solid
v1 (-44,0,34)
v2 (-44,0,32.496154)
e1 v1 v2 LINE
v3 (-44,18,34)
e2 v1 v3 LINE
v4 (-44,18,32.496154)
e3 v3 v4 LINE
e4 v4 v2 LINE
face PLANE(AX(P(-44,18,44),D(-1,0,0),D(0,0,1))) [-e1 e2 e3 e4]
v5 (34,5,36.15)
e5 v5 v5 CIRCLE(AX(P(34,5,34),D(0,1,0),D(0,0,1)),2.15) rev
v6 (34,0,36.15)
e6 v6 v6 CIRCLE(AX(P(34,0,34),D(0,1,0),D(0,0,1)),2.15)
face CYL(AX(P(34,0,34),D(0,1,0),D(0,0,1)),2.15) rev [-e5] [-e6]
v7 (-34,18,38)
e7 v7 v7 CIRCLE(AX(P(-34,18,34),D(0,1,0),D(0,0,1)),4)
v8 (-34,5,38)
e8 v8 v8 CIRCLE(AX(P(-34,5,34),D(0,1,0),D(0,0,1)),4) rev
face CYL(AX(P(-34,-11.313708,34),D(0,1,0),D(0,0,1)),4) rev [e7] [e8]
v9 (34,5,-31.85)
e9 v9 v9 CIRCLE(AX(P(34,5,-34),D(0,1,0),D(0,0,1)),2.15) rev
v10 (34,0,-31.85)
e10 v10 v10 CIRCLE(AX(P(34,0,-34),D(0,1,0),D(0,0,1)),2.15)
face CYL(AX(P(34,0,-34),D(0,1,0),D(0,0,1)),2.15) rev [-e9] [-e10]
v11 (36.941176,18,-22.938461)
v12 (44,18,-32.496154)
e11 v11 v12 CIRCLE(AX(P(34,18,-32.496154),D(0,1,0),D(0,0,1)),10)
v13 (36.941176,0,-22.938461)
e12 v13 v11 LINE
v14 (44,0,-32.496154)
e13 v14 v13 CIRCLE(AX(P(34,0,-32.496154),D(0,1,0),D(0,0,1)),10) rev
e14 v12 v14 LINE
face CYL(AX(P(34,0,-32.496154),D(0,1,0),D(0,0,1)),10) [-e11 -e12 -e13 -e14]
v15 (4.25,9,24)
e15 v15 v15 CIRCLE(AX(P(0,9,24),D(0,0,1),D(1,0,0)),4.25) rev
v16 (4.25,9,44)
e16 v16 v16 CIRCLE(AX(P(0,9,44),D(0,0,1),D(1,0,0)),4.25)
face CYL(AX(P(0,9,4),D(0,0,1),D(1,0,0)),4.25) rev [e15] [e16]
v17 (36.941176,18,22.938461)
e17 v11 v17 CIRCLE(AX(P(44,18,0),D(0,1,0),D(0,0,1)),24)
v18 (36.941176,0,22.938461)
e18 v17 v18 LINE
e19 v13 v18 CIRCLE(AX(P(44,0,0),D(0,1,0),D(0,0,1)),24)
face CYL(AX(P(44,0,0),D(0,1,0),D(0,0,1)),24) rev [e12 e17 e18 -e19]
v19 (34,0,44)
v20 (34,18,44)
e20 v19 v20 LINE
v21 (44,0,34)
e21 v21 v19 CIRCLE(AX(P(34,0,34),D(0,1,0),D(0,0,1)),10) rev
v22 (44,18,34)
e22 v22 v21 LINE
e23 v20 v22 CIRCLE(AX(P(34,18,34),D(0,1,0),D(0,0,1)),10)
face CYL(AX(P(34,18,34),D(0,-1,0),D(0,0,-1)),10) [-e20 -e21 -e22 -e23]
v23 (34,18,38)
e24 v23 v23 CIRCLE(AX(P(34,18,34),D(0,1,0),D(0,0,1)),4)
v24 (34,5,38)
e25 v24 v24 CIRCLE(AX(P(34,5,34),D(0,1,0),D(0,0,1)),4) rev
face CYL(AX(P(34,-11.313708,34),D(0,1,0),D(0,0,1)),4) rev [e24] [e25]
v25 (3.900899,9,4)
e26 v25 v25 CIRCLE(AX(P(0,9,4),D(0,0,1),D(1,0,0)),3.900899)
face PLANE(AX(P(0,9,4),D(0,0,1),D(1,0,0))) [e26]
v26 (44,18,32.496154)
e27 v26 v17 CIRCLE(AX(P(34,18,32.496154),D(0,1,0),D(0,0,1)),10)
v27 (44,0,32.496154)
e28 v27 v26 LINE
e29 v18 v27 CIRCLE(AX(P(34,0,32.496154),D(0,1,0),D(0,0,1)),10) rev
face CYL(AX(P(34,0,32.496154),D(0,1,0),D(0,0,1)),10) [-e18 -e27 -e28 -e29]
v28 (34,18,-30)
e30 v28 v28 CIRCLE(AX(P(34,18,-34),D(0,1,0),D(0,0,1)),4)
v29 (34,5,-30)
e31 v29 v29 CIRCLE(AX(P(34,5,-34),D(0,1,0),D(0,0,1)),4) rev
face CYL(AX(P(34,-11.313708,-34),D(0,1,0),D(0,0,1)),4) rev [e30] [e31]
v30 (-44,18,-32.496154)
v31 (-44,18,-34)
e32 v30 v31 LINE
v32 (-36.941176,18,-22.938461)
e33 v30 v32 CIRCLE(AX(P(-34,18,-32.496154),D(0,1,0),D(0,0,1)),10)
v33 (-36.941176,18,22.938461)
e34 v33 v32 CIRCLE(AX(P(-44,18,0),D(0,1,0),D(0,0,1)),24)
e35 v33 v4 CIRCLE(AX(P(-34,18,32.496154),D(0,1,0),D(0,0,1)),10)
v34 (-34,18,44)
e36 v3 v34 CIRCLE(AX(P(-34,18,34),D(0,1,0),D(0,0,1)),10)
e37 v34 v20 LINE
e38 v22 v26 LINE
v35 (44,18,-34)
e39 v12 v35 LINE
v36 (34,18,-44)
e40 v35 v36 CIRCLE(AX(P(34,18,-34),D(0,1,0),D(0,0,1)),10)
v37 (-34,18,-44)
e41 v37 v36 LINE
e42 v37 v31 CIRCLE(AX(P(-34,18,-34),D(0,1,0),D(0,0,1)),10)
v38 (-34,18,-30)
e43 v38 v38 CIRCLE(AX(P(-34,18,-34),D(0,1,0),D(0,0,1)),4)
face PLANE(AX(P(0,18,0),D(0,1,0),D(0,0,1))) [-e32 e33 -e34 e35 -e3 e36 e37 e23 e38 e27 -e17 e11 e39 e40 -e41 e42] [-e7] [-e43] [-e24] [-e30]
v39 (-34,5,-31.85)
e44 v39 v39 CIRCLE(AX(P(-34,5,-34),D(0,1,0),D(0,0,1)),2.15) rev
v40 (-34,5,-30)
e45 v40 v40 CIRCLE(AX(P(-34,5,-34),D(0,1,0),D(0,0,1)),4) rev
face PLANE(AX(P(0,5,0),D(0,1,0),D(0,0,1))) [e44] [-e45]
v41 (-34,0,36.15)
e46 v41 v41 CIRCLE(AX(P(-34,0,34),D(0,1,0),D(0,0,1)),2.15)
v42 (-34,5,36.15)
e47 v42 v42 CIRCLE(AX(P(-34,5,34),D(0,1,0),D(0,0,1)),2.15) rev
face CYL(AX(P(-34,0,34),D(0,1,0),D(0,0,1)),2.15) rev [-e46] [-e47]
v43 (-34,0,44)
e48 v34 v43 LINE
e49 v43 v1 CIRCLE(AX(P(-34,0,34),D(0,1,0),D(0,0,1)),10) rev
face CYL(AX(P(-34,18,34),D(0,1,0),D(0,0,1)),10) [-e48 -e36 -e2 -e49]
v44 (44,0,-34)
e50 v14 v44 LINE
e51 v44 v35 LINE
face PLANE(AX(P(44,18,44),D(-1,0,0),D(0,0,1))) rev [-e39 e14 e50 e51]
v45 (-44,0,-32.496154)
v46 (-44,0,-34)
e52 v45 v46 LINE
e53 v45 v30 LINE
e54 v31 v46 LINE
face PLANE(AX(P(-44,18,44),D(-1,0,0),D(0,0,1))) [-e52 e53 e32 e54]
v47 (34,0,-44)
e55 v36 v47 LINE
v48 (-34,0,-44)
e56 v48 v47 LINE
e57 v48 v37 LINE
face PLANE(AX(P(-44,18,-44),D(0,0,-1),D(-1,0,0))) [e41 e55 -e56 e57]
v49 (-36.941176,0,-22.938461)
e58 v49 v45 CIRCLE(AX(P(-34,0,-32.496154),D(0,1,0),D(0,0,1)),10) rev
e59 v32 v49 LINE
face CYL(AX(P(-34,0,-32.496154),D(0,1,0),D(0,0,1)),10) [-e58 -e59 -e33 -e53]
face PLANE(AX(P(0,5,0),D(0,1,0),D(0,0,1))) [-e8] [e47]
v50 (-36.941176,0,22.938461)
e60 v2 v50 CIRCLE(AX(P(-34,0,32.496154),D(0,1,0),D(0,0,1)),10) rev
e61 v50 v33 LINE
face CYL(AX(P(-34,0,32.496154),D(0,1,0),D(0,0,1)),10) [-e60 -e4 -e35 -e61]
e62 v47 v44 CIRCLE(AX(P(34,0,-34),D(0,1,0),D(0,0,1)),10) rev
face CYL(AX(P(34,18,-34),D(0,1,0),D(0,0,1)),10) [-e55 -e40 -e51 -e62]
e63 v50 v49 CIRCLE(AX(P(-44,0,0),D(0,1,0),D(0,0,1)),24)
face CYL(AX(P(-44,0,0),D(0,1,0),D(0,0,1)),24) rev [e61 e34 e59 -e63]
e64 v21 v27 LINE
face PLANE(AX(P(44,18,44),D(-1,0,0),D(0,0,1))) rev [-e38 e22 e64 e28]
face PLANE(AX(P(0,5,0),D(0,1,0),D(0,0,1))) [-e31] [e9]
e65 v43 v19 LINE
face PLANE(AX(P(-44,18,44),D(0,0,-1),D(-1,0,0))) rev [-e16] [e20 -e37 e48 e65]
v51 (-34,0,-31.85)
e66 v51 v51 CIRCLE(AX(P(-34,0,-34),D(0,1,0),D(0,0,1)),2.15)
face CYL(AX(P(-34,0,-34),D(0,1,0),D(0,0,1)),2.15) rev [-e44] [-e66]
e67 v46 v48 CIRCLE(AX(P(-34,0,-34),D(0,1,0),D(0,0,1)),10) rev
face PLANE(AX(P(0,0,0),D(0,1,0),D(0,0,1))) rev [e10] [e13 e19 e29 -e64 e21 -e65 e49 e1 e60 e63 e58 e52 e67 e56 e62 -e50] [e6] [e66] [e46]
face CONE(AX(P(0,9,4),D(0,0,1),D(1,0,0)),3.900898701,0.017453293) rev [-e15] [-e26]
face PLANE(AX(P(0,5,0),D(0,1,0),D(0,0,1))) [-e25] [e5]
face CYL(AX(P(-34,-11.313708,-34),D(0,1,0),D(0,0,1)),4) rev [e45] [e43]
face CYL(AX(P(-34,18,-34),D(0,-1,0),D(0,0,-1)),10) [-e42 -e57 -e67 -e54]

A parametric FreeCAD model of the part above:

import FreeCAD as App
import Part
import Sketcher


def edges_at(feature, points):
    """Names of the edges that pass closest to the given points."""
    edges = feature.Shape.Edges
    near = lambda p: min(range(len(edges)), key=lambda i: edges[i].distToShape(Part.Vertex(*p))[0])
    return sorted({f"Edge{near(p) + 1}" for p in points})

doc = App.newDocument("Part")
body = doc.addObject("PartDesign::Body", "Body")

# Sketch on XZ plane
sketch1 = body.newObject("Sketcher::SketchObject", "Sketch")
sketch1.AttachmentSupport = (doc.getObject("XZ_Plane"), [""])
sketch1.MapMode = "FlatFace"
sketch1.addGeometry(Part.LineSegment(App.Vector(-44, -44, 0), App.Vector(-44, 44, 0)), False)
sketch1.addGeometry(Part.LineSegment(App.Vector(-44, 44, 0), App.Vector(44, 44, 0)), False)
sketch1.addGeometry(Part.LineSegment(App.Vector(44, 44, 0), App.Vector(44, -44, 0)), False)
sketch1.addGeometry(Part.LineSegment(App.Vector(44, -44, 0), App.Vector(-44, -44, 0)), False)
sketch1.addConstraint(Sketcher.Constraint("Coincident", 0, 2, 1, 1))
sketch1.addConstraint(Sketcher.Constraint("Coincident", 1, 2, 2, 1))
sketch1.addConstraint(Sketcher.Constraint("Coincident", 2, 2, 3, 1))
sketch1.addConstraint(Sketcher.Constraint("Coincident", 3, 2, 0, 1))
sketch1.addConstraint(Sketcher.Constraint("Vertical", 0))
sketch1.addConstraint(Sketcher.Constraint("Horizontal", 1))
sketch1.addConstraint(Sketcher.Constraint("Vertical", 2))
sketch1.addConstraint(Sketcher.Constraint("Horizontal", 3))
sketch1.addConstraint(Sketcher.Constraint("Symmetric", 0, 2, 2, 2, -1, 1))
sketch1.addConstraint(Sketcher.Constraint("Equal", 3, 0))
sketch1.addConstraint(Sketcher.Constraint("DistanceX", 1, 1, 1, 2, 88.0))
pad1 = body.newObject("PartDesign::Pad", "Pad")
pad1.Profile = sketch1
pad1.Length = 18
pad1.Reversed = True
doc.recompute()

fillet = body.newObject("PartDesign::Fillet", "Fillet")
fillet.Base = (pad1, edges_at(pad1, [
    (-44, 9, -44),
    (-44, 9, 44),
    (44, 9, 44),
    (44, 9, -44),
]))
fillet.Radius = 10

# Sketch on XZ plane
sketch2 = body.newObject("Sketcher::SketchObject", "Sketch001")
sketch2.AttachmentSupport = (doc.getObject("XZ_Plane"), [""])
sketch2.MapMode = "FlatFace"
sketch2.AttachmentOffset = App.Placement(App.Vector(0, 0, -18), App.Rotation())
sketch2.addGeometry(Part.Circle(App.Vector(-34, -34, 0), App.Vector(0, 0, 1), 2.1), False)
sketch2.addGeometry(Part.Circle(App.Vector(34, -34, 0), App.Vector(0, 0, 1), 2.1), False)
sketch2.addGeometry(Part.Circle(App.Vector(34, 34, 0), App.Vector(0, 0, 1), 2.1), False)
sketch2.addGeometry(Part.Circle(App.Vector(-34, 34, 0), App.Vector(0, 0, 1), 2.1), False)
sketch2.addConstraint(Sketcher.Constraint("Equal", 0, 1))
sketch2.addConstraint(Sketcher.Constraint("Equal", 1, 2))
sketch2.addConstraint(Sketcher.Constraint("Equal", 2, 3))
sketch2.addConstraint(Sketcher.Constraint("Symmetric", 0, 3, 2, 3, -1, 1))
sketch2.addConstraint(Sketcher.Constraint("Symmetric", 1, 3, 3, 3, -1, 1))
sketch2.addConstraint(Sketcher.Constraint("Symmetric", 0, 3, 1, 3, -2))
sketch2.addConstraint(Sketcher.Constraint("Diameter", 0, 4.3))
sketch2.addConstraint(Sketcher.Constraint("DistanceX", 0, 3, -1, 1, 34.0))
sketch2.addConstraint(Sketcher.Constraint("DistanceY", 0, 3, -1, 1, 34.0))
pocket1 = body.newObject("PartDesign::Pocket", "Pocket")
pocket1.Profile = sketch2
pocket1.Type = "ThroughAll"
pocket1.Reversed = True

# Sketch on XZ plane
sketch3 = body.newObject("Sketcher::SketchObject", "Sketch002")
sketch3.AttachmentSupport = (doc.getObject("XZ_Plane"), [""])
sketch3.MapMode = "FlatFace"
sketch3.AttachmentOffset = App.Placement(App.Vector(0, 0, -18), App.Rotation())
sketch3.addGeometry(Part.Circle(App.Vector(-34, -34, 0), App.Vector(0, 0, 1), 4), False)
sketch3.addGeometry(Part.Circle(App.Vector(34, -34, 0), App.Vector(0, 0, 1), 4), False)
sketch3.addGeometry(Part.Circle(App.Vector(34, 34, 0), App.Vector(0, 0, 1), 4), False)
sketch3.addGeometry(Part.Circle(App.Vector(-34, 34, 0), App.Vector(0, 0, 1), 4), False)
sketch3.addConstraint(Sketcher.Constraint("Equal", 0, 1))
sketch3.addConstraint(Sketcher.Constraint("Equal", 1, 2))
sketch3.addConstraint(Sketcher.Constraint("Equal", 2, 3))
sketch3.addConstraint(Sketcher.Constraint("Symmetric", 0, 3, 2, 3, -1, 1))
sketch3.addConstraint(Sketcher.Constraint("Symmetric", 1, 3, 3, 3, -1, 1))
sketch3.addConstraint(Sketcher.Constraint("Symmetric", 0, 3, 1, 3, -2))
sketch3.addConstraint(Sketcher.Constraint("Diameter", 0, 8.0))
sketch3.addConstraint(Sketcher.Constraint("DistanceX", 0, 3, -1, 1, 34.0))
sketch3.addConstraint(Sketcher.Constraint("DistanceY", 0, 3, -1, 1, 34.0))
pocket2 = body.newObject("PartDesign::Pocket", "Pocket001")
pocket2.Profile = sketch3
pocket2.Length = 13
pocket2.Reversed = True

# Sketch on XY plane
sketch4 = body.newObject("Sketcher::SketchObject", "Sketch003")
sketch4.AttachmentSupport = (doc.getObject("XY_Plane"), [""])
sketch4.MapMode = "FlatFace"
sketch4.AttachmentOffset = App.Placement(App.Vector(0, 0, 44), App.Rotation())
sketch4.addGeometry(Part.Circle(App.Vector(0, 9, 0), App.Vector(0, 0, 1), 4.2), False)
sketch4.addConstraint(Sketcher.Constraint("PointOnObject", 0, 3, -2))
sketch4.addConstraint(Sketcher.Constraint("Diameter", 0, 8.5))
sketch4.addConstraint(Sketcher.Constraint("DistanceY", -1, 1, 0, 3, 9.0))
pocket3 = body.newObject("PartDesign::Pocket", "Pocket002")
pocket3.Profile = sketch4
pocket3.Length = 40
doc.recompute()

chamfer = body.newObject("PartDesign::Chamfer", "Chamfer")
chamfer.Base = (pocket3, edges_at(pocket3, [(-4.25, 9, 4)]))
chamfer.ChamferType = "Two distances"
chamfer.Size = 20
chamfer.Size2 = 0.349101

# Sketch on XZ plane
sketch5 = body.newObject("Sketcher::SketchObject", "Sketch004")
sketch5.AttachmentSupport = (doc.getObject("XZ_Plane"), [""])
sketch5.MapMode = "FlatFace"
sketch5.AttachmentOffset = App.Placement(App.Vector(0, 0, -18), App.Rotation())
sketch5.addGeometry(Part.Circle(App.Vector(-44, 0, 0), App.Vector(0, 0, 1), 24), False)
sketch5.addGeometry(Part.Circle(App.Vector(44, 0, 0), App.Vector(0, 0, 1), 24), False)
sketch5.addConstraint(Sketcher.Constraint("Equal", 0, 1))
sketch5.addConstraint(Sketcher.Constraint("Symmetric", 0, 3, 1, 3, -1, 1))
sketch5.addConstraint(Sketcher.Constraint("PointOnObject", 0, 3, -1))
sketch5.addConstraint(Sketcher.Constraint("Diameter", 0, 48.0))
sketch5.addConstraint(Sketcher.Constraint("DistanceX", 0, 3, -1, 1, 44.0))
pocket4 = body.newObject("PartDesign::Pocket", "Pocket003")
pocket4.Profile = sketch5
pocket4.Type = "ThroughAll"
pocket4.Reversed = True
doc.recompute()

fillet2 = body.newObject("PartDesign::Fillet", "Fillet001")
fillet2.Base = (pocket4, edges_at(pocket4, [
    (-44, 9, 24),
    (-44, 9, -24),
    (44, 9, 24),
    (44, 9, -24),
]))
fillet2.Radius = 10

doc.recompute()
